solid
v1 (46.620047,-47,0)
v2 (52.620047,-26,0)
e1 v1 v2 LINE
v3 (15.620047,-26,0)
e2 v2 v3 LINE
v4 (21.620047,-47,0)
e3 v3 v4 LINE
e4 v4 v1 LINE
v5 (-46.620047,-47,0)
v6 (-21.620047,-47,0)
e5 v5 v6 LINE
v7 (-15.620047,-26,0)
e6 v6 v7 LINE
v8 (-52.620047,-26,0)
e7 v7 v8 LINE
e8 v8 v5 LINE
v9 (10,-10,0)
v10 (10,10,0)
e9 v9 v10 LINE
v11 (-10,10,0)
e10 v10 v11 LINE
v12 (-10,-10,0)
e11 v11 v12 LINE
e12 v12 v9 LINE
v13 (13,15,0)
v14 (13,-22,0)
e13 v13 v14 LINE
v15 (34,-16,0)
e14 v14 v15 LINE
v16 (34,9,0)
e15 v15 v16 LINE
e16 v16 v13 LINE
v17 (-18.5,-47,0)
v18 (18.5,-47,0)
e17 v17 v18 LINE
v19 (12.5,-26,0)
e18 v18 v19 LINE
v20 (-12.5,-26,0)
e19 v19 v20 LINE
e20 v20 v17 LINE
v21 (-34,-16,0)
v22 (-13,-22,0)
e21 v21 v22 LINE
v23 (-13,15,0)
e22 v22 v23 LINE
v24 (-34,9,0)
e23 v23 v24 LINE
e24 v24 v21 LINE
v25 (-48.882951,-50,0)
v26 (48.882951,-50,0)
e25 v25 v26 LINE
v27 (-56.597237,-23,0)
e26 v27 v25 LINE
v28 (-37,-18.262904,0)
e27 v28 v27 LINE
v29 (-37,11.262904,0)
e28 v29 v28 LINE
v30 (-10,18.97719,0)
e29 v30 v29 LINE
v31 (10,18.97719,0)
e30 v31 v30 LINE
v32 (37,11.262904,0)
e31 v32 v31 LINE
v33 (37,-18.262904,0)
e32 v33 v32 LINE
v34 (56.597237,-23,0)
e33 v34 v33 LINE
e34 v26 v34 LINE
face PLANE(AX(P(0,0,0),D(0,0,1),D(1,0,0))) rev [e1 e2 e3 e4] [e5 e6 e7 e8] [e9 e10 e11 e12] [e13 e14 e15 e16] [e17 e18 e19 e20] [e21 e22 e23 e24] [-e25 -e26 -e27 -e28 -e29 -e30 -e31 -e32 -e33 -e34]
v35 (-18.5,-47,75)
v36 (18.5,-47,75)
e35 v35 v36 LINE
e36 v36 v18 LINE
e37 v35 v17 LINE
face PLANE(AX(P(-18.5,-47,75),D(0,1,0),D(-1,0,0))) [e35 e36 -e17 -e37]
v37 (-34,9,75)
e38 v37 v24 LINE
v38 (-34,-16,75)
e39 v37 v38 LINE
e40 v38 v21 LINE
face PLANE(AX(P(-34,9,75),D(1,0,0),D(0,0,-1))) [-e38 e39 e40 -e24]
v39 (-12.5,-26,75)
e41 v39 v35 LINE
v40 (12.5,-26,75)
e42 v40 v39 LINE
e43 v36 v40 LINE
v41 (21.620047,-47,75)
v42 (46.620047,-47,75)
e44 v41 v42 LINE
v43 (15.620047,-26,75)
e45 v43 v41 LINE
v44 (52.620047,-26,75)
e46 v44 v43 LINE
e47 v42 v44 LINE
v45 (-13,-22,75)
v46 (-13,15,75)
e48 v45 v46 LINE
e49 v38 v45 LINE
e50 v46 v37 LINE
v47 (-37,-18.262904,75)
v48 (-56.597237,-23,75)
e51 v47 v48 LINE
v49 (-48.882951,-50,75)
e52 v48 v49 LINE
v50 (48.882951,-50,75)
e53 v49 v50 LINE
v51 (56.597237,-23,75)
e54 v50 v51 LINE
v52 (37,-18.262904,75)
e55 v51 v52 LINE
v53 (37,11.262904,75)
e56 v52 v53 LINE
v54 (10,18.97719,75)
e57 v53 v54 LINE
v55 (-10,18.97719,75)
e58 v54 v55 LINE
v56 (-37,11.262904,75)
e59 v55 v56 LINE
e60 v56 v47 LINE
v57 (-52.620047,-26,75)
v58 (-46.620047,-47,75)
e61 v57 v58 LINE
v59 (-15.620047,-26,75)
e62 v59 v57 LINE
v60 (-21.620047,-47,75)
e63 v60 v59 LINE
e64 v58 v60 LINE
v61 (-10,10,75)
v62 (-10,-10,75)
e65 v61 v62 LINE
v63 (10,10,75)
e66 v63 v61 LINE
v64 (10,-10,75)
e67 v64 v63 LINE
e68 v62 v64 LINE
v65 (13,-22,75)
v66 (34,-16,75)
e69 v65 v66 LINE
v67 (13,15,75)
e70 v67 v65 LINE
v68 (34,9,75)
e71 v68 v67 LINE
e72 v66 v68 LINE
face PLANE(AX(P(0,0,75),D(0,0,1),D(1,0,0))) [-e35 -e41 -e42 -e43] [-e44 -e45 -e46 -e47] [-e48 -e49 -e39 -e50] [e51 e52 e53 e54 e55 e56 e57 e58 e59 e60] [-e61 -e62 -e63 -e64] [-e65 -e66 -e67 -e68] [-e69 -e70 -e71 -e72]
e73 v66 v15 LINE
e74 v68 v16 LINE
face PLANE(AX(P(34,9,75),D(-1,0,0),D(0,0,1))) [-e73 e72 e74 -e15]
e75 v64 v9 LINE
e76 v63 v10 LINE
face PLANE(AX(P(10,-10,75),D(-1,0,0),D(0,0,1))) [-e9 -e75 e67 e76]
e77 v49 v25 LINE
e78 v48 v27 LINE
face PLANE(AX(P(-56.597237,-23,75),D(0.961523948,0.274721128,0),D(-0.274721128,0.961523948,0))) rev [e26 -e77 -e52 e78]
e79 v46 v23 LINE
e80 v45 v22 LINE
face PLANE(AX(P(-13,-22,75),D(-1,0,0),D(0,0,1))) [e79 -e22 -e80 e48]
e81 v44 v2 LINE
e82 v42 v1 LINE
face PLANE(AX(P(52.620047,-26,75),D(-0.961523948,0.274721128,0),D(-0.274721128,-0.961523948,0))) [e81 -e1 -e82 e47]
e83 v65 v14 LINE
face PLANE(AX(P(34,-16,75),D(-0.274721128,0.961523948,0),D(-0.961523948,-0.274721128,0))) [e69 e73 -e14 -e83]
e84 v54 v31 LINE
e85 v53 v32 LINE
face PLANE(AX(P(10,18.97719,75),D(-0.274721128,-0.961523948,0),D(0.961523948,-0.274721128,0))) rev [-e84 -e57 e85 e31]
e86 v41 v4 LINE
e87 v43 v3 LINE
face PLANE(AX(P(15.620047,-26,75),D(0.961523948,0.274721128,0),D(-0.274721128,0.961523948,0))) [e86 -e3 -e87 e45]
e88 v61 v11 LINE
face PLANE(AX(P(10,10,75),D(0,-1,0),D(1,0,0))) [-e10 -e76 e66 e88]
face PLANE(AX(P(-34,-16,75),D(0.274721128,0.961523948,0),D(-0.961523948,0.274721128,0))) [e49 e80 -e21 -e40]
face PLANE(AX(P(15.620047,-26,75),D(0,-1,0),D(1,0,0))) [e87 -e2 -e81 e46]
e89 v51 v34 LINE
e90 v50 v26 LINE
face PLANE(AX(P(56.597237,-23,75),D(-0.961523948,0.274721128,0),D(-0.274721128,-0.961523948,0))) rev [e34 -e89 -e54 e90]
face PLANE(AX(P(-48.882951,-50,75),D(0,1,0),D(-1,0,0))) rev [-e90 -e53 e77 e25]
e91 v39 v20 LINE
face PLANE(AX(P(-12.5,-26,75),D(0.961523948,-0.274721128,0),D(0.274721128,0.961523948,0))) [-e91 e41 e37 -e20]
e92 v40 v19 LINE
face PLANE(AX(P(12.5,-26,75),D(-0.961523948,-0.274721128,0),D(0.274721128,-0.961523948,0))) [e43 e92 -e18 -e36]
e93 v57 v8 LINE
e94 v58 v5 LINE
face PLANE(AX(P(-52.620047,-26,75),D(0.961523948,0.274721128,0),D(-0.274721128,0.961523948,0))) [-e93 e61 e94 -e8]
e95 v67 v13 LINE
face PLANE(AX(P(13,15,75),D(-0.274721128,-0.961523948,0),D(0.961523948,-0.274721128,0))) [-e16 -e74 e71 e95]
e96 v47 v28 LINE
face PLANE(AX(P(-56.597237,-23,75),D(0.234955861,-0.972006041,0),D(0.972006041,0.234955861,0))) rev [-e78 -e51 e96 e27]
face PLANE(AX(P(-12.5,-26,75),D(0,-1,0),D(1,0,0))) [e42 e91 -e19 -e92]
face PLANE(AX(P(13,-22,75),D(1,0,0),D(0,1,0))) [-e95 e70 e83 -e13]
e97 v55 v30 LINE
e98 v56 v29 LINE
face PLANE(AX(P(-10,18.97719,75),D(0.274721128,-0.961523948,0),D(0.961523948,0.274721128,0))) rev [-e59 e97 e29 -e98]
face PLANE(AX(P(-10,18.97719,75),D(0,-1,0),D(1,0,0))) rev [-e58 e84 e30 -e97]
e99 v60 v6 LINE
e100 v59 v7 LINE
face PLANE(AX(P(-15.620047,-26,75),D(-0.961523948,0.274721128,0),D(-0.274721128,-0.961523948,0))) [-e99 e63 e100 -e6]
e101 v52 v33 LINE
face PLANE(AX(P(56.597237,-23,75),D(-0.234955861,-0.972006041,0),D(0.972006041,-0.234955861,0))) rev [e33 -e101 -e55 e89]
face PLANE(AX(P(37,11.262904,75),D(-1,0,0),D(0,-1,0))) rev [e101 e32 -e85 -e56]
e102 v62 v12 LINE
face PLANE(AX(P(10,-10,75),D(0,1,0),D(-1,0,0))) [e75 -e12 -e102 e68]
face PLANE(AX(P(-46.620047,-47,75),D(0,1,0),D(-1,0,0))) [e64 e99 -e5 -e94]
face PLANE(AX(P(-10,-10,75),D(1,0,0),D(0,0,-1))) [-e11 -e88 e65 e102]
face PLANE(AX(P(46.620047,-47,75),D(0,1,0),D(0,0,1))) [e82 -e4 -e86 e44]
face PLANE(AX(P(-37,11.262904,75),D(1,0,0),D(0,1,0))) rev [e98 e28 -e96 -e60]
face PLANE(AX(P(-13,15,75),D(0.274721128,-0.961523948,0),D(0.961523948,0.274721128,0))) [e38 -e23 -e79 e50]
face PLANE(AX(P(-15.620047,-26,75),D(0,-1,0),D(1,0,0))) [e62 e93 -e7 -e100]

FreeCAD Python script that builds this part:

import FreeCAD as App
import Part
import Sketcher
from FreeCAD import Vector
Q = App.Units.Quantity

doc = App.newDocument("Part")
params = doc.addObject("Spreadsheet::Sheet", "Params")
for row, (alias, value) in enumerate([
    ("sketch1_width", "20 mm"),
    ("sketch1_width2", "37 mm"),
    ("sketch1_width3", "25 mm"),
    ("pad1_length", "75 mm"),
], start=1):
    params.set(f"A{row}", alias)
    params.set(f"B{row}", "=" + value)
    params.setAlias(f"B{row}", alias)

body = doc.addObject("PartDesign::Body", "Body")

# Sketch on XY plane
sketch1 = body.newObject("Sketcher::SketchObject", "Sketch")
sketch1.AttachmentSupport = (doc.getObject("XY_Plane"), [""])
sketch1.MapMode = "FlatFace"
sketch1.addGeometry(Part.LineSegment(Vector(49, -50, 0), Vector(57, -23, 0)), False)
sketch1.addGeometry(Part.LineSegment(Vector(57, -23, 0), Vector(37, -18, 0)), False)
sketch1.addGeometry(Part.LineSegment(Vector(37, -18, 0), Vector(37, 11, 0)), False)
sketch1.addGeometry(Part.LineSegment(Vector(37, 11, 0), Vector(10, 19, 0)), False)
sketch1.addGeometry(Part.LineSegment(Vector(10, 19, 0), Vector(-10, 19, 0)), False)
sketch1.addGeometry(Part.LineSegment(Vector(-10, 19, 0), Vector(-37, 11, 0)), False)
sketch1.addGeometry(Part.LineSegment(Vector(-37, 11, 0), Vector(-37, -18, 0)), False)
sketch1.addGeometry(Part.LineSegment(Vector(-37, -18, 0), Vector(-57, -23, 0)), False)
sketch1.addGeometry(Part.LineSegment(Vector(-57, -23, 0), Vector(-49, -50, 0)), False)
sketch1.addGeometry(Part.LineSegment(Vector(-49, -50, 0), Vector(49, -50, 0)), False)
sketch1.addGeometry(Part.LineSegment(Vector(16, -26, 0), Vector(53, -26, 0)), False)
sketch1.addGeometry(Part.LineSegment(Vector(53, -26, 0), Vector(47, -47, 0)), False)
sketch1.addGeometry(Part.LineSegment(Vector(47, -47, 0), Vector(22, -47, 0)), False)
sketch1.addGeometry(Part.LineSegment(Vector(22, -47, 0), Vector(16, -26, 0)), False)
sketch1.addGeometry(Part.LineSegment(Vector(-12, -26, 0), Vector(12, -26, 0)), False)
sketch1.addGeometry(Part.LineSegment(Vector(12, -26, 0), Vector(18, -47, 0)), False)
sketch1.addGeometry(Part.LineSegment(Vector(18, -47, 0), Vector(-18, -47, 0)), False)
sketch1.addGeometry(Part.LineSegment(Vector(-18, -47, 0), Vector(-12, -26, 0)), False)
sketch1.addGeometry(Part.LineSegment(Vector(-16, -26, 0), Vector(-22, -47, 0)), False)
sketch1.addGeometry(Part.LineSegment(Vector(-22, -47, 0), Vector(-47, -47, 0)), False)
sketch1.addGeometry(Part.LineSegment(Vector(-47, -47, 0), Vector(-53, -26, 0)), False)
sketch1.addGeometry(Part.LineSegment(Vector(-53, -26, 0), Vector(-16, -26, 0)), False)
sketch1.addGeometry(Part.LineSegment(Vector(34, 9, 0), Vector(34, -16, 0)), False)
sketch1.addGeometry(Part.LineSegment(Vector(34, -16, 0), Vector(13, -22, 0)), False)
sketch1.addGeometry(Part.LineSegment(Vector(13, -22, 0), Vector(13, 15, 0)), False)
sketch1.addGeometry(Part.LineSegment(Vector(13, 15, 0), Vector(34, 9, 0)), False)
sketch1.addGeometry(Part.LineSegment(Vector(-10, -10, 0), Vector(-10, 10, 0)), False)
sketch1.addGeometry(Part.LineSegment(Vector(-10, 10, 0), Vector(10, 10, 0)), False)
sketch1.addGeometry(Part.LineSegment(Vector(10, 10, 0), Vector(10, -10, 0)), False)
sketch1.addGeometry(Part.LineSegment(Vector(10, -10, 0), Vector(-10, -10, 0)), False)
sketch1.addGeometry(Part.LineSegment(Vector(-13, -22, 0), Vector(-34, -16, 0)), False)
sketch1.addGeometry(Part.LineSegment(Vector(-34, -16, 0), Vector(-34, 9, 0)), False)
sketch1.addGeometry(Part.LineSegment(Vector(-34, 9, 0), Vector(-13, 15, 0)), False)
sketch1.addGeometry(Part.LineSegment(Vector(-13, 15, 0), Vector(-13, -22, 0)), False)
sketch1.addConstraint(Sketcher.Constraint("Coincident", 0, 2, 1, 1))
sketch1.addConstraint(Sketcher.Constraint("Coincident", 1, 2, 2, 1))
sketch1.addConstraint(Sketcher.Constraint("Coincident", 2, 2, 3, 1))
sketch1.addConstraint(Sketcher.Constraint("Coincident", 3, 2, 4, 1))
sketch1.addConstraint(Sketcher.Constraint("Coincident", 4, 2, 5, 1))
sketch1.addConstraint(Sketcher.Constraint("Coincident", 5, 2, 6, 1))
sketch1.addConstraint(Sketcher.Constraint("Coincident", 6, 2, 7, 1))
sketch1.addConstraint(Sketcher.Constraint("Coincident", 7, 2, 8, 1))
sketch1.addConstraint(Sketcher.Constraint("Coincident", 8, 2, 9, 1))
sketch1.addConstraint(Sketcher.Constraint("Coincident", 9, 2, 0, 1))
sketch1.addConstraint(Sketcher.Constraint("Coincident", 10, 2, 11, 1))
sketch1.addConstraint(Sketcher.Constraint("Coincident", 11, 2, 12, 1))
sketch1.addConstraint(Sketcher.Constraint("Coincident", 12, 2, 13, 1))
sketch1.addConstraint(Sketcher.Constraint("Coincident", 13, 2, 10, 1))
sketch1.addConstraint(Sketcher.Constraint("Coincident", 14, 2, 15, 1))
sketch1.addConstraint(Sketcher.Constraint("Coincident", 15, 2, 16, 1))
sketch1.addConstraint(Sketcher.Constraint("Coincident", 16, 2, 17, 1))
sketch1.addConstraint(Sketcher.Constraint("Coincident", 17, 2, 14, 1))
sketch1.addConstraint(Sketcher.Constraint("Coincident", 18, 2, 19, 1))
sketch1.addConstraint(Sketcher.Constraint("Coincident", 19, 2, 20, 1))
sketch1.addConstraint(Sketcher.Constraint("Coincident", 20, 2, 21, 1))
sketch1.addConstraint(Sketcher.Constraint("Coincident", 21, 2, 18, 1))
sketch1.addConstraint(Sketcher.Constraint("Coincident", 22, 2, 23, 1))
sketch1.addConstraint(Sketcher.Constraint("Coincident", 23, 2, 24, 1))
sketch1.addConstraint(Sketcher.Constraint("Coincident", 24, 2, 25, 1))
sketch1.addConstraint(Sketcher.Constraint("Coincident", 25, 2, 22, 1))
sketch1.addConstraint(Sketcher.Constraint("Coincident", 26, 2, 27, 1))
sketch1.addConstraint(Sketcher.Constraint("Coincident", 27, 2, 28, 1))
sketch1.addConstraint(Sketcher.Constraint("Coincident", 28, 2, 29, 1))
sketch1.addConstraint(Sketcher.Constraint("Coincident", 29, 2, 26, 1))
sketch1.addConstraint(Sketcher.Constraint("Coincident", 30, 2, 31, 1))
sketch1.addConstraint(Sketcher.Constraint("Coincident", 31, 2, 32, 1))
sketch1.addConstraint(Sketcher.Constraint("Coincident", 32, 2, 33, 1))
sketch1.addConstraint(Sketcher.Constraint("Coincident", 33, 2, 30, 1))
sketch1.addConstraint(Sketcher.Constraint("Vertical", 2))
sketch1.addConstraint(Sketcher.Constraint("Horizontal", 4))
sketch1.addConstraint(Sketcher.Constraint("Vertical", 6))
sketch1.addConstraint(Sketcher.Constraint("Horizontal", 9))
sketch1.addConstraint(Sketcher.Constraint("Horizontal", 10))
sketch1.addConstraint(Sketcher.Constraint("Horizontal", 12))
sketch1.addConstraint(Sketcher.Constraint("Horizontal", 14))
sketch1.addConstraint(Sketcher.Constraint("Horizontal", 16))
sketch1.addConstraint(Sketcher.Constraint("Horizontal", 19))
sketch1.addConstraint(Sketcher.Constraint("Horizontal", 21))
sketch1.addConstraint(Sketcher.Constraint("Vertical", 22))
sketch1.addConstraint(Sketcher.Constraint("Vertical", 24))
sketch1.addConstraint(Sketcher.Constraint("Vertical", 26))
sketch1.addConstraint(Sketcher.Constraint("Horizontal", 27))
sketch1.addConstraint(Sketcher.Constraint("Vertical", 28))
sketch1.addConstraint(Sketcher.Constraint("Horizontal", 29))
sketch1.addConstraint(Sketcher.Constraint("Vertical", 31))
sketch1.addConstraint(Sketcher.Constraint("Vertical", 33))
sketch1.addConstraint(Sketcher.Constraint("Symmetric", 26, 2, 28, 2, -1, 1))
sketch1.addConstraint(Sketcher.Constraint("Symmetric", 2, 2, 5, 2, -2))
sketch1.addConstraint(Sketcher.Constraint("Symmetric", 0, 2, 7, 2, -2))
sketch1.addConstraint(Sketcher.Constraint("Symmetric", 12, 2, 18, 2, -2))
sketch1.addConstraint(Sketcher.Constraint("Symmetric", 10, 2, 20, 2, -2))
sketch1.addConstraint(Sketcher.Constraint("Symmetric", 22, 2, 30, 2, -2))
sketch1.addConstraint(Sketcher.Constraint("Symmetric", 24, 2, 32, 2, -2))
sketch1.addConstraint(Sketcher.Constraint("Perpendicular", 0, 3))
sketch1.addConstraint(Sketcher.Constraint("Perpendicular", 5, 8))
sketch1.addConstraint(Sketcher.Constraint("Perpendicular", 3, 11))
sketch1.addConstraint(Sketcher.Constraint("Parallel", 8, 13))
sketch1.addConstraint(Sketcher.Constraint("Parallel", 13, 15))
sketch1.addConstraint(Sketcher.Constraint("Parallel", 11, 17))
sketch1.addConstraint(Sketcher.Constraint("Parallel", 17, 18))
sketch1.addConstraint(Sketcher.Constraint("Parallel", 15, 20))
sketch1.addConstraint(Sketcher.Constraint("Perpendicular", 20, 23))
sketch1.addConstraint(Sketcher.Constraint("Perpendicular", 18, 25))
sketch1.addConstraint(Sketcher.Constraint("Parallel", 25, 30))
sketch1.addConstraint(Sketcher.Constraint("Parallel", 23, 32))
sketch1.addConstraint(Sketcher.Constraint("Horizontal", 1, 2, 6, 2))
sketch1.addConstraint(Sketcher.Constraint("Horizontal", 13, 2, 14, 2))
sketch1.addConstraint(Sketcher.Constraint("Horizontal", 12, 2, 15, 2))
sketch1.addConstraint(Sketcher.Constraint("Horizontal", 25, 2, 31, 2))
sketch1.addConstraint(Sketcher.Constraint("Vertical", 4, 2, 26, 2))
sketch1.addConstraint(Sketcher.Constraint("Equal", 12, 14))
sketch1.addConstraint(Sketcher.Constraint("Equal", 19, 22))
sketch1.addConstraint(Sketcher.Constraint("Equal", 21, 24))
sketch1.addConstraint(Sketcher.Constraint("Equal", 29, 26))
sketch1.addConstraint(Sketcher.Constraint("Equal", 0, 3))
sketch1.addConstraint(Sketcher.Constraint("DistanceX", 4, 2, 4, 1, Q("20 mm")))
sketch1.addConstraint(Sketcher.Constraint("DistanceX", 10, 1, 10, 2, Q("37 mm")))
sketch1.addConstraint(Sketcher.Constraint("DistanceX", 12, 2, 12, 1, Q("25 mm")))
sketch1.addConstraint(Sketcher.Constraint("DistanceY", 0, 2, -1, 1, Q("23 mm")))
sketch1.addConstraint(Sketcher.Constraint("DistanceX", -1, 1, 1, 2, Q("37 mm")))
sketch1.addConstraint(Sketcher.Constraint("DistanceY", 10, 2, -1, 1, Q("26 mm")))
sketch1.addConstraint(Sketcher.Constraint("DistanceY", 11, 2, -1, 1, Q("47 mm")))
sketch1.addConstraint(Sketcher.Constraint("DistanceX", -1, 1, 22, 2, Q("34 mm")))
sketch1.addConstraint(Sketcher.Constraint("DistanceY", 22, 2, -1, 1, Q("16 mm")))
sketch1.addConstraint(Sketcher.Constraint("DistanceX", -1, 1, 14, 2, Q("12.5 mm")))
sketch1.addConstraint(Sketcher.Constraint("DistanceY", 2, 1, 2, 2, Q("29.525808 mm")))
sketch1.addConstraint(Sketcher.Constraint("Distance", 1, Q("20.161641 mm")))
sketch1.addConstraint(Sketcher.Constraint("DistanceX", 9, 1, 9, 2, Q("97.765903 mm")))
sketch1.addConstraint(Sketcher.Constraint("DistanceX", 10, 2, 0, 2, Q("3.97719 mm")))
sketch1.setExpression("Constraints[81]", "Params.sketch1_width")
sketch1.setExpression("Constraints[82]", "Params.sketch1_width2")
sketch1.setExpression("Constraints[83]", "Params.sketch1_width3")
pad1 = body.newObject("PartDesign::Pad", "Pad")
pad1.Profile = sketch1
pad1.setExpression("Length", "Params.pad1_length")

doc.recompute()
